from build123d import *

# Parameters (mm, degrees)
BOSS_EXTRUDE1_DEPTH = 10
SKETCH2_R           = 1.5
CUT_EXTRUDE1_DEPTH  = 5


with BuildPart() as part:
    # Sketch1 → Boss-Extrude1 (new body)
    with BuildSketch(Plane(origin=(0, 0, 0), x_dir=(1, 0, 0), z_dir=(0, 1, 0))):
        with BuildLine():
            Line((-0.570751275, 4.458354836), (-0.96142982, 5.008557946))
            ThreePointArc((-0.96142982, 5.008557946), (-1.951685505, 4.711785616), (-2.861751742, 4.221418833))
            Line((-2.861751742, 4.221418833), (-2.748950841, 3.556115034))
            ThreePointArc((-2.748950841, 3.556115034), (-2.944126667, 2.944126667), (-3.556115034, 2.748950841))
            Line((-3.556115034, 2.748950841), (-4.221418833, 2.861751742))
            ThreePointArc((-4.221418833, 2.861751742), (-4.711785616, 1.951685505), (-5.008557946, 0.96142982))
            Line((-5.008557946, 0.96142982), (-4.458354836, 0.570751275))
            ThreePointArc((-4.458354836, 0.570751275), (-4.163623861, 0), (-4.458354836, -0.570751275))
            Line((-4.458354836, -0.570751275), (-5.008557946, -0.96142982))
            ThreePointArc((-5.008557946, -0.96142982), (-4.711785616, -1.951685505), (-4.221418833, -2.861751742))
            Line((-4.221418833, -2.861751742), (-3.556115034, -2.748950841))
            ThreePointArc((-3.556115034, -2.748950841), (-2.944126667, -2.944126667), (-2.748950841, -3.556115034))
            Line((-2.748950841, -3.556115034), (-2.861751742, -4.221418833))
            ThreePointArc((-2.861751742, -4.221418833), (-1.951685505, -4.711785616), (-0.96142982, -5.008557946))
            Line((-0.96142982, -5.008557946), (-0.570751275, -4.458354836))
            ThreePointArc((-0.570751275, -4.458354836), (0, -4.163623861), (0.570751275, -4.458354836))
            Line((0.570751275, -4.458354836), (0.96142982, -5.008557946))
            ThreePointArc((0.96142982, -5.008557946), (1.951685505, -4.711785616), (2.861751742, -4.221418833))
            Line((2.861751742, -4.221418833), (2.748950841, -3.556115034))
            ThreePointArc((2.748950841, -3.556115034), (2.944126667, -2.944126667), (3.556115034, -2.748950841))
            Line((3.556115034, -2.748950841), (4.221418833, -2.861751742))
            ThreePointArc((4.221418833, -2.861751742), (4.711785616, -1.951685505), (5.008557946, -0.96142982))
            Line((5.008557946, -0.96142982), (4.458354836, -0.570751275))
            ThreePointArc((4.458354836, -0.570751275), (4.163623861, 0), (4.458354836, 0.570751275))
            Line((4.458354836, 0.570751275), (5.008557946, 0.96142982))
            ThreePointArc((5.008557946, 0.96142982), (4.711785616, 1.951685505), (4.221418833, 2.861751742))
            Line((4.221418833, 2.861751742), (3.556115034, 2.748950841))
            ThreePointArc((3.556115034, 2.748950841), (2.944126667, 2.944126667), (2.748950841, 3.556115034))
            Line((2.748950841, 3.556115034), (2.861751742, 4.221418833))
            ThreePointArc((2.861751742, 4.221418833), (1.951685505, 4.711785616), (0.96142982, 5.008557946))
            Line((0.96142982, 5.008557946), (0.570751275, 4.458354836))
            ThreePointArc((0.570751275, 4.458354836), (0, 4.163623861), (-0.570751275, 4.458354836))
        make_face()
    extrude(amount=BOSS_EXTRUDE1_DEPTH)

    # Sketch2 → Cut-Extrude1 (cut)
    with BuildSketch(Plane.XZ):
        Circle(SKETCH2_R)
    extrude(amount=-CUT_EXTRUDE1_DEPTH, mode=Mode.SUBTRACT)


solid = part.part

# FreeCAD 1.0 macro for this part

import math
import FreeCAD as App
import Part
import Sketcher

V = App.Vector

doc = App.newDocument("Part")
body = doc.addObject("PartDesign::Body", "Body")

# Sketch on XZ plane
sketch1 = doc.addObject("Sketcher::SketchObject", "Sketch")
body.addObject(sketch1)
sketch1.AttachmentSupport = (doc.XZ_Plane, [""])
sketch1.MapMode = "FlatFace"
sketch1.addGeometry([
    Part.LineSegment(V(-0.6, -4.5, 0), V(-1, -5, 0)),  # 0
    Part.ArcOfCircle(Part.Circle(V(0, 0, 0), V(0, 0, 1), 5.1), math.radians(-124), math.radians(-101)),  # 1
    Part.LineSegment(V(-2.9, -4.2, 0), V(-2.7, -3.6, 0)),  # 2
    Part.ArcOfCircle(Part.Circle(V(-3.4, -3.4, 0), V(0, 0, 1), 0.7), math.radians(-10), math.radians(100)),  # 3
    Part.LineSegment(V(-3.6, -2.7, 0), V(-4.2, -2.9, 0)),  # 4
    Part.ArcOfCircle(Part.Circle(V(0, 0, 0), V(0, 0, 1), 5.1), math.radians(-169), math.radians(-146)),  # 5
    Part.LineSegment(V(-5, -1, 0), V(-4.5, -0.6, 0)),  # 6
    Part.ArcOfCircle(Part.Circle(V(-4.9, 0, 0), V(0, 0, 1), 0.7), math.radians(-55), math.radians(55)),  # 7
    Part.LineSegment(V(-4.5, 0.6, 0), V(-5, 1, 0)),  # 8
    Part.ArcOfCircle(Part.Circle(V(0, 0, 0), V(0, 0, 1), 5.1), math.radians(146), math.radians(169)),  # 9
    Part.LineSegment(V(-4.2, 2.9, 0), V(-3.6, 2.7, 0)),  # 10
    Part.ArcOfCircle(Part.Circle(V(-3.4, 3.4, 0), V(0, 0, 1), 0.7), math.radians(-100), math.radians(10)),  # 11
    Part.LineSegment(V(-2.7, 3.6, 0), V(-2.9, 4.2, 0)),  # 12
    Part.ArcOfCircle(Part.Circle(V(0, 0, 0), V(0, 0, 1), 5.1), math.radians(101), math.radians(124)),  # 13
    Part.LineSegment(V(-1, 5, 0), V(-0.6, 4.5, 0)),  # 14
    Part.ArcOfCircle(Part.Circle(V(0, 4.9, 0), V(0, 0, 1), 0.7), math.radians(-145), math.radians(-35)),  # 15
    Part.LineSegment(V(0.6, 4.5, 0), V(1, 5, 0)),  # 16
    Part.ArcOfCircle(Part.Circle(V(0, 0, 0), V(0, 0, 1), 5.1), math.radians(56), math.radians(79)),  # 17
    Part.LineSegment(V(2.9, 4.2, 0), V(2.7, 3.6, 0)),  # 18
    Part.ArcOfCircle(Part.Circle(V(3.4, 3.4, 0), V(0, 0, 1), 0.7), math.radians(170), math.radians(280)),  # 19
    Part.LineSegment(V(3.6, 2.7, 0), V(4.2, 2.9, 0)),  # 20
    Part.ArcOfCircle(Part.Circle(V(0, 0, 0), V(0, 0, 1), 5.1), math.radians(11), math.radians(34)),  # 21
    Part.LineSegment(V(5, 1, 0), V(4.5, 0.6, 0)),  # 22
    Part.ArcOfCircle(Part.Circle(V(4.9, 0, 0), V(0, 0, 1), 0.7), math.radians(125), math.radians(235)),  # 23
    Part.LineSegment(V(4.5, -0.6, 0), V(5, -1, 0)),  # 24
    Part.ArcOfCircle(Part.Circle(V(0, 0, 0), V(0, 0, 1), 5.1), math.radians(-34), math.radians(-11)),  # 25
    Part.LineSegment(V(4.2, -2.9, 0), V(3.6, -2.7, 0)),  # 26
    Part.ArcOfCircle(Part.Circle(V(3.4, -3.4, 0), V(0, 0, 1), 0.7), math.radians(80), math.radians(190)),  # 27
    Part.LineSegment(V(2.7, -3.6, 0), V(2.9, -4.2, 0)),  # 28
    Part.ArcOfCircle(Part.Circle(V(0, 0, 0), V(0, 0, 1), 5.1), math.radians(-79), math.radians(-56)),  # 29
    Part.LineSegment(V(1, -5, 0), V(0.6, -4.5, 0)),  # 30
    Part.ArcOfCircle(Part.Circle(V(0, -4.9, 0), V(0, 0, 1), 0.7), math.radians(35), math.radians(145)),  # 31
], False)
sketch1.addConstraint([
    Sketcher.Constraint("Coincident", 0, 2, 1, 2),
    Sketcher.Constraint("Coincident", 1, 1, 2, 1),
    Sketcher.Constraint("Tangent", 2, 2, 3, 1),
    Sketcher.Constraint("Tangent", 3, 2, 4, 1),
    Sketcher.Constraint("Coincident", 4, 2, 5, 2),
    Sketcher.Constraint("Coincident", 5, 1, 6, 1),
    Sketcher.Constraint("Tangent", 6, 2, 7, 1),
    Sketcher.Constraint("Tangent", 7, 2, 8, 1),
    Sketcher.Constraint("Coincident", 8, 2, 9, 2),
    Sketcher.Constraint("Coincident", 9, 1, 10, 1),
    Sketcher.Constraint("Tangent", 10, 2, 11, 1),
    Sketcher.Constraint("Tangent", 11, 2, 12, 1),
    Sketcher.Constraint("Coincident", 12, 2, 13, 2),
    Sketcher.Constraint("Coincident", 13, 1, 14, 1),
    Sketcher.Constraint("Tangent", 14, 2, 15, 1),
    Sketcher.Constraint("Tangent", 15, 2, 16, 1),
    Sketcher.Constraint("Coincident", 16, 2, 17, 2),
    Sketcher.Constraint("Coincident", 17, 1, 18, 1),
    Sketcher.Constraint("Tangent", 18, 2, 19, 1),
    Sketcher.Constraint("Tangent", 19, 2, 20, 1),
    Sketcher.Constraint("Coincident", 20, 2, 21, 2),
    Sketcher.Constraint("Coincident", 21, 1, 22, 1),
    Sketcher.Constraint("Tangent", 22, 2, 23, 1),
    Sketcher.Constraint("Tangent", 23, 2, 24, 1),
    Sketcher.Constraint("Coincident", 24, 2, 25, 2),
    Sketcher.Constraint("Coincident", 25, 1, 26, 1),
    Sketcher.Constraint("Tangent", 26, 2, 27, 1),
    Sketcher.Constraint("Tangent", 27, 2, 28, 1),
    Sketcher.Constraint("Coincident", 28, 2, 29, 2),
    Sketcher.Constraint("Coincident", 29, 1, 30, 1),
    Sketcher.Constraint("Tangent", 30, 2, 31, 1),
    Sketcher.Constraint("Tangent", 31, 2, 0, 1),
    Sketcher.Constraint("Coincident", 1, 3, -1, 1),
    Sketcher.Constraint("Coincident", 5, 3, -1, 1),
    Sketcher.Constraint("Coincident", 9, 3, -1, 1),
    Sketcher.Constraint("Coincident", 13, 3, -1, 1),
    Sketcher.Constraint("Coincident", 17, 3, -1, 1),
    Sketcher.Constraint("Coincident", 21, 3, -1, 1),
    Sketcher.Constraint("Coincident", 25, 3, -1, 1),
    Sketcher.Constraint("Coincident", 29, 3, -1, 1),
    Sketcher.Constraint("Equal", 1, 5),
    Sketcher.Constraint("Equal", 3, 7),
    Sketcher.Constraint("Equal", 5, 9),
    Sketcher.Constraint("Equal", 7, 11),
    Sketcher.Constraint("Equal", 9, 13),
    Sketcher.Constraint("Equal", 11, 15),
    Sketcher.Constraint("Equal", 13, 17),
    Sketcher.Constraint("Equal", 15, 19),
    Sketcher.Constraint("Equal", 17, 21),
    Sketcher.Constraint("Equal", 19, 23),
    Sketcher.Constraint("Equal", 21, 25),
    Sketcher.Constraint("Equal", 23, 27),
    Sketcher.Constraint("Equal", 25, 29),
    Sketcher.Constraint("Equal", 27, 31),
    Sketcher.Constraint("Symmetric", 3, 3, 19, 3, -1, 1),
    Sketcher.Constraint("Symmetric", 7, 3, 23, 3, -1, 1),
    Sketcher.Constraint("Symmetric", 11, 3, 27, 3, -1, 1),
    Sketcher.Constraint("Symmetric", 15, 3, 31, 3, -1, 1),
    Sketcher.Constraint("Symmetric", 11, 3, 19, 3, -2),
    Sketcher.Constraint("Symmetric", 14, 2, 15, 2, -2),
    Sketcher.Constraint("Symmetric", 7, 2, 22, 2, -2),
    Sketcher.Constraint("Perpendicular", 0, 8),
    Sketcher.Constraint("Perpendicular", 2, 10),
    Sketcher.Constraint("Perpendicular", 4, 12),
    Sketcher.Constraint("Perpendicular", 6, 14),
    Sketcher.Constraint("Perpendicular", 8, 16),
    Sketcher.Constraint("Perpendicular", 10, 18),
    Sketcher.Constraint("Perpendicular", 12, 20),
    Sketcher.Constraint("Perpendicular", 16, 24),
    Sketcher.Constraint("Perpendicular", 18, 26),
    Sketcher.Constraint("Perpendicular", 20, 28),
    Sketcher.Constraint("Perpendicular", 22, 30),
    Sketcher.Constraint("Horizontal", 12, 2, 17, 1),
    Sketcher.Constraint("Equal", 0, 2),
    Sketcher.Constraint("Equal", 2, 4),
    Sketcher.Constraint("Equal", 4, 6),
    Sketcher.Constraint("Radius", 1, 5.1),
    Sketcher.Constraint("Radius", 3, 0.7),
    Sketcher.Constraint("DistanceY", 4, 2, 6, 2, 2.291),
    Sketcher.Constraint("Distance", 0, 0.674799),
    Sketcher.Constraint("DistanceX", 3, 3, -1, 1, 3.439101),
])
pad1 = doc.addObject("PartDesign::Pad", "Pad")
body.addObject(pad1)
pad1.Profile = sketch1
pad1.Length = 10
pad1.Reversed = True

# Sketch on XZ plane
sketch2 = doc.addObject("Sketcher::SketchObject", "Sketch001")
body.addObject(sketch2)
sketch2.AttachmentSupport = (doc.XZ_Plane, [""])
sketch2.MapMode = "FlatFace"
sketch2.addGeometry(Part.Circle(V(0, 0, 0), V(0, 0, 1), 1.5), False)
sketch2.addConstraint([
    Sketcher.Constraint("Coincident", 0, 3, -1, 1),
    Sketcher.Constraint("Diameter", 0, 3.0),
])
pocket1 = doc.addObject("PartDesign::Pocket", "Pocket")
body.addObject(pocket1)
pocket1.Profile = sketch2
pocket1.Length = 5

doc.recompute()
